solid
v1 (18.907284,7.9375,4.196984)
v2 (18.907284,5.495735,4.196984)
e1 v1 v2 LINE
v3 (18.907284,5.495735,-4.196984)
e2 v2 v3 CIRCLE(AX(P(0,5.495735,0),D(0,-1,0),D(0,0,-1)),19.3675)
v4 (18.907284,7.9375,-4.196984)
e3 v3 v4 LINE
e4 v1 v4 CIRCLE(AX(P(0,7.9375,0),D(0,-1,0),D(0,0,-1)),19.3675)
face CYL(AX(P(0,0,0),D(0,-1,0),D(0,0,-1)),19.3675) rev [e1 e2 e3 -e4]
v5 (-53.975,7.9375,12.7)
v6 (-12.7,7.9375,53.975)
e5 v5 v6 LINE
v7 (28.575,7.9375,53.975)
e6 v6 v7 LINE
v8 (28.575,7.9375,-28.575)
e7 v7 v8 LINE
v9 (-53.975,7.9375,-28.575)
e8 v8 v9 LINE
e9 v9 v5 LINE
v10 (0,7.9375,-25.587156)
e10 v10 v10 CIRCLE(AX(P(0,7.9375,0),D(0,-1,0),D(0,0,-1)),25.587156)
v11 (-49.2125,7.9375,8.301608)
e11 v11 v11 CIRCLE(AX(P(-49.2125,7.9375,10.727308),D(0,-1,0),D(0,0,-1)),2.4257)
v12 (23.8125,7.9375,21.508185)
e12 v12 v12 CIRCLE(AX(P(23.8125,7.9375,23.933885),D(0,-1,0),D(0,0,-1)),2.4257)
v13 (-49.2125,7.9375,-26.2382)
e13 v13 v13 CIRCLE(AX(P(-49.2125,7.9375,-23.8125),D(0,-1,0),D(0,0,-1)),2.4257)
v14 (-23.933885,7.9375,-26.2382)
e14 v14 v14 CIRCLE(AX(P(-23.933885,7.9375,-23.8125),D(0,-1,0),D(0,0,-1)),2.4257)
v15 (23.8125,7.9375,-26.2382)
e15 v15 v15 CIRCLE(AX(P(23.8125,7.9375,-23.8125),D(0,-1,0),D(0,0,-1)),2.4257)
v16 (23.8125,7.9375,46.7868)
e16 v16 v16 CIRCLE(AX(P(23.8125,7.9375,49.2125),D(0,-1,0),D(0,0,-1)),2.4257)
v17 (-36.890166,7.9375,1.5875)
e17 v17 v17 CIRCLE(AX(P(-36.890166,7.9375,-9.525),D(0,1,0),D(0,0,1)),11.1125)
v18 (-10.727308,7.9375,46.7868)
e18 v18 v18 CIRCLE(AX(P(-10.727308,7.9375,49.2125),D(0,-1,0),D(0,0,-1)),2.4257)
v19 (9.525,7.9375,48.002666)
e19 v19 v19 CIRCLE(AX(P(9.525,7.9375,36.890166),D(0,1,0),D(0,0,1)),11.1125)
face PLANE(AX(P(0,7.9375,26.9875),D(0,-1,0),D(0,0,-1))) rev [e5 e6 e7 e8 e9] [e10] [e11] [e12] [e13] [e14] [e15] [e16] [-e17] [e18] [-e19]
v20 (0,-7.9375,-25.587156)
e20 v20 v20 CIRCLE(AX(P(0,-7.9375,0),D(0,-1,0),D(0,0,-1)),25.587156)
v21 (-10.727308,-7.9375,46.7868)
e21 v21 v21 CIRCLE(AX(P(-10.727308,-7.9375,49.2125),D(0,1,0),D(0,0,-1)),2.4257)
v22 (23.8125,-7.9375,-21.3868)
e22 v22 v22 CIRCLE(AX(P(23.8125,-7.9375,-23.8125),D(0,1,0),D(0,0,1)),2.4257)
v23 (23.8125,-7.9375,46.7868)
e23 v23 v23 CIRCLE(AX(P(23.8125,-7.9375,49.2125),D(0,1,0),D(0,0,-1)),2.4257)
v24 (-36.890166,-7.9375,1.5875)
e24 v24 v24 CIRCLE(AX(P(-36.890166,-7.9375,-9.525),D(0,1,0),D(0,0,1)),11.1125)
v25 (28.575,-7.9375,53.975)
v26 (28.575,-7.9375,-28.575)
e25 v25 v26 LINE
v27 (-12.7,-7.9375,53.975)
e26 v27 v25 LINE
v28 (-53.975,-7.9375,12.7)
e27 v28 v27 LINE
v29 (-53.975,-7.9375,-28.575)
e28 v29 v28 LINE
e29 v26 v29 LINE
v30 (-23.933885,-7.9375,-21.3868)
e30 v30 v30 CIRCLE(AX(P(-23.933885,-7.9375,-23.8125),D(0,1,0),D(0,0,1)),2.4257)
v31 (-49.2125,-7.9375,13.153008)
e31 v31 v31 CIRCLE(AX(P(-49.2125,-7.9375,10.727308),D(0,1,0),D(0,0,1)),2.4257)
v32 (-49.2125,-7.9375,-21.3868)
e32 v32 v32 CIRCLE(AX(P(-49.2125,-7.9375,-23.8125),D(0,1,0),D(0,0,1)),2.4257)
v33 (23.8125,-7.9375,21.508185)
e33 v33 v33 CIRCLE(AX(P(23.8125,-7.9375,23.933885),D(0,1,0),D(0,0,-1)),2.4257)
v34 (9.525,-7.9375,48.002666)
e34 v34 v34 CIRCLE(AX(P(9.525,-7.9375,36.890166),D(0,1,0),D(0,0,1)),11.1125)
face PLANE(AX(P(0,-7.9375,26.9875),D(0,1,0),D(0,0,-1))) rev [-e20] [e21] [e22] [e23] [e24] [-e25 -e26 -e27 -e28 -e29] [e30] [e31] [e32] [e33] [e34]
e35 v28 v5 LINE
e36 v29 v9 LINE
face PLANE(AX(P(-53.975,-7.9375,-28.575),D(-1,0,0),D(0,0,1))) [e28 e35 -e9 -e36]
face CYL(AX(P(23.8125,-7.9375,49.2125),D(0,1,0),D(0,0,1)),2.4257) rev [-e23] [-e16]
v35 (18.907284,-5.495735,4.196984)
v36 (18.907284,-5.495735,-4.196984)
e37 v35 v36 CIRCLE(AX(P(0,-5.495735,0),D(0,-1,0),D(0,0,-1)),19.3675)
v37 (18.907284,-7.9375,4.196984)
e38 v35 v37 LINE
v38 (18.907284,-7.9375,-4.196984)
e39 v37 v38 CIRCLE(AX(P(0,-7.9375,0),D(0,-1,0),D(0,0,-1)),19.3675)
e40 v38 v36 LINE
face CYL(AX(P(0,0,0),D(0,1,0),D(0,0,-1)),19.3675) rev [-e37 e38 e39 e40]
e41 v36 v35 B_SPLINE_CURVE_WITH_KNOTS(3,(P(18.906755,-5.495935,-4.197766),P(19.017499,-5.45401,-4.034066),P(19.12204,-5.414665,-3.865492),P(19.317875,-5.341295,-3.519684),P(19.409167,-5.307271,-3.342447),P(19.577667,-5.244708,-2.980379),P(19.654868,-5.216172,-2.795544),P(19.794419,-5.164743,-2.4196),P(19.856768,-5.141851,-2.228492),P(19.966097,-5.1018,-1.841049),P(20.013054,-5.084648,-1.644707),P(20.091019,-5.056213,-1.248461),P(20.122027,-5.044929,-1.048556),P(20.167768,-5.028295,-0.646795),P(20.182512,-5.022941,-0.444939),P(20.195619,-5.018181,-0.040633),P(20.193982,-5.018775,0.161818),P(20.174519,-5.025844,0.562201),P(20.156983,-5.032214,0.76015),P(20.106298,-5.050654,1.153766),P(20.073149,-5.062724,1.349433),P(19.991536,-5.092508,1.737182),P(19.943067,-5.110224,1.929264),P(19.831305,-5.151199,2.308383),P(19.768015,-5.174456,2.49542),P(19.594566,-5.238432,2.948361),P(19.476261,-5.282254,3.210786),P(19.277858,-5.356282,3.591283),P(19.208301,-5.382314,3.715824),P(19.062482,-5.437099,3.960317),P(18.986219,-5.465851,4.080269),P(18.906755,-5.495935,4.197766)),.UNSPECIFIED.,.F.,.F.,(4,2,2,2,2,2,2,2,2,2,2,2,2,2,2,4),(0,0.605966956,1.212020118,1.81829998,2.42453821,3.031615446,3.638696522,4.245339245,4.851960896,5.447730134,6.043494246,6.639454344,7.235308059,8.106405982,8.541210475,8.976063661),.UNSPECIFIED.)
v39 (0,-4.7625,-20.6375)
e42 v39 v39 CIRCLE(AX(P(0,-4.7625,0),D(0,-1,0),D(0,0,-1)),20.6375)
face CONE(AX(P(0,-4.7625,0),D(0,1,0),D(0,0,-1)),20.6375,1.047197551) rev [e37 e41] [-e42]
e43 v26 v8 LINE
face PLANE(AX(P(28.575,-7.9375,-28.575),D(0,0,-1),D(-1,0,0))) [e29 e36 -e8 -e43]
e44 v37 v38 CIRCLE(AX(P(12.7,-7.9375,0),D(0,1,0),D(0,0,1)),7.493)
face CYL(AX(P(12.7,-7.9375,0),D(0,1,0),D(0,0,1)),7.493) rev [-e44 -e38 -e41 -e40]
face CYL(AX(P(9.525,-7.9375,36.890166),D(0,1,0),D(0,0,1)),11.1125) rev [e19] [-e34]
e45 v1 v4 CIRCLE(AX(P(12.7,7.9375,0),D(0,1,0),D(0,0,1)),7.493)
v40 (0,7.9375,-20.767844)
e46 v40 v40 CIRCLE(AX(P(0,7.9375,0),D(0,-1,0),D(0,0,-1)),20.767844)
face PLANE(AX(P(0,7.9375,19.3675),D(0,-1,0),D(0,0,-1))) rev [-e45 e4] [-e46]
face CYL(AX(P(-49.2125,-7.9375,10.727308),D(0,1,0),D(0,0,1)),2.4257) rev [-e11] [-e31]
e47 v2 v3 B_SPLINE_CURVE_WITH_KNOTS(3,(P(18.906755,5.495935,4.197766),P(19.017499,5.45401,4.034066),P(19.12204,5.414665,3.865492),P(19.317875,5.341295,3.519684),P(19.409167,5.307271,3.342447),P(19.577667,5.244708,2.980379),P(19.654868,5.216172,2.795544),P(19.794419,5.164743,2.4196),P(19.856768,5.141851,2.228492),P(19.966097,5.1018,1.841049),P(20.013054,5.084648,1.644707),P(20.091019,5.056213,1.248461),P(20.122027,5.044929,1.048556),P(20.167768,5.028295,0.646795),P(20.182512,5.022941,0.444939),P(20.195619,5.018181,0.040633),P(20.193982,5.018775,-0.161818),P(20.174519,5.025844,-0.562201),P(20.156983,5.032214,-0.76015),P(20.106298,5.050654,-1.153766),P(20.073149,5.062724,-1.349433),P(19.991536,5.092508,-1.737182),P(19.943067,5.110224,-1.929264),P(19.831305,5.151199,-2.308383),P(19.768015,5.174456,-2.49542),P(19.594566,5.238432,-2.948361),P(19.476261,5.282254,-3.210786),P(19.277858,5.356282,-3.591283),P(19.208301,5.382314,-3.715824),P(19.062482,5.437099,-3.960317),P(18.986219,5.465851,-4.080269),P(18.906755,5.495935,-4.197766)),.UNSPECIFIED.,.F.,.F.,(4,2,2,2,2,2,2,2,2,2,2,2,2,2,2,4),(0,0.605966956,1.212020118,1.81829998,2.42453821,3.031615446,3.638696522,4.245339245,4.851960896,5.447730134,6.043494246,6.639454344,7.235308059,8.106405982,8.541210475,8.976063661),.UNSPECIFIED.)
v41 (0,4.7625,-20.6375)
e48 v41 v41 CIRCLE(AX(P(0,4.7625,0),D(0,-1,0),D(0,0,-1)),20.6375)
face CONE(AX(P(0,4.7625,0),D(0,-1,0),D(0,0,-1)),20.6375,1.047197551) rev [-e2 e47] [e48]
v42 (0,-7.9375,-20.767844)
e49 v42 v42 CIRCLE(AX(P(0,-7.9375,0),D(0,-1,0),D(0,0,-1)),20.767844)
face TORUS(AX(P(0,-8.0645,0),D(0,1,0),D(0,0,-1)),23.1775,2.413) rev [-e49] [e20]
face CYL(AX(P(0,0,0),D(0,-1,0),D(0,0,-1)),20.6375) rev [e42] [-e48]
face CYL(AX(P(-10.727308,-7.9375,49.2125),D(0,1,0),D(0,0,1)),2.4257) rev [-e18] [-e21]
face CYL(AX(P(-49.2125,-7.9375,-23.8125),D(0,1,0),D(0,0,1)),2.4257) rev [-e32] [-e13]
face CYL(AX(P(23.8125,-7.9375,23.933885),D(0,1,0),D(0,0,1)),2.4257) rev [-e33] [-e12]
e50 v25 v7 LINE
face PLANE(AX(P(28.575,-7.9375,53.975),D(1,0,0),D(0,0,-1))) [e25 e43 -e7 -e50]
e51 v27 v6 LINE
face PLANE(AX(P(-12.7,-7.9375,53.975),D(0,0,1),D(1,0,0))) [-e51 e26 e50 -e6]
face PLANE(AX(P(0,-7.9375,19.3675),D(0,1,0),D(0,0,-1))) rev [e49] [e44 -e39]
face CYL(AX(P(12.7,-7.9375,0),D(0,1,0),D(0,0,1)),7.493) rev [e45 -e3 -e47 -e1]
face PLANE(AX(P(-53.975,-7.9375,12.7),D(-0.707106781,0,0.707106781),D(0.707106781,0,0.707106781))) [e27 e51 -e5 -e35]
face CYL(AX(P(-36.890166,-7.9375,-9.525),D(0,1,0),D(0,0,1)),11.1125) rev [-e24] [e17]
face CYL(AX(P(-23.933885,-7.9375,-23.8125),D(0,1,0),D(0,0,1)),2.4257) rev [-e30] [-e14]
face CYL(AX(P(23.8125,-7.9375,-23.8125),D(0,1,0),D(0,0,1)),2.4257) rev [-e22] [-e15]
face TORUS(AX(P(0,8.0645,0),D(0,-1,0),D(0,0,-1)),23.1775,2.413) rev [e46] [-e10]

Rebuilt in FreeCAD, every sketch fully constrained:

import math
import FreeCAD as App
import Part
import Sketcher
Q = App.Units.Quantity


def add_polygon(sketch, points):
    """Adds a closed chain of lines whose ends are joined by coincident constraints."""
    first, n = sketch.GeometryCount, len(points)
    for a, b in zip(points, points[1:] + points[:1]):
        sketch.addGeometry(Part.LineSegment(App.Vector(*a, 0), App.Vector(*b, 0)), False)
    for i in range(n):
        sketch.addConstraint(Sketcher.Constraint("Coincident", first + i, 2, first + (i + 1) % n, 1))

doc = App.newDocument("Part")
params = doc.addObject("Spreadsheet::Sheet", "Params")
for row, (alias, value) in enumerate([
    ("sketch1_radius", "0.095 in"),
    ("sketch1_height", "0.25 in"),
    ("sketch1_width", "0.1875 in"),
    ("sketch1_width2", "0.3125 in"),
    ("revolution_angle", "360 deg"),
    ("sketch2_diameter", "0.59 in"),
    ("sketch3_diameter", "2.12 in"),
    ("sketch3_diameter2", "0.875 in"),
    ("sketch3_width", "3.25 in"),
    ("sketch3_width2", "1.625 in"),
    ("sketch4_diameter", "0.5 in"),
    ("sketch4_width", "3.25 in"),
    ("sketch4_width2", "1.625 in"),
    ("pad2_length", "0.1875 in"),
    ("sketch5_diameter", "0.191 in"),
    ("pad3_length", "27.9875 mm"),
    ("pad3_length2", "16.875 mm"),
], start=1):
    params.set(f"A{row}", alias)
    params.set(f"B{row}", "=" + value)
    params.setAlias(f"B{row}", alias)

body = doc.addObject("PartDesign::Body", "Body")

sketch1 = body.newObject("Sketcher::SketchObject", "Sketch")
sketch1.AttachmentSupport = (doc.getObject("YZ_Plane"), [""])
sketch1.MapMode = "FlatFace"
sketch1.addGeometry([
    Part.LineSegment(App.Vector(0, 27, 0), App.Vector(0, 20.6, 0)),
    Part.LineSegment(App.Vector(0, 20.6, 0), App.Vector(4.8, 20.6, 0)),
    Part.LineSegment(App.Vector(4.8, 20.6, 0), App.Vector(5.5, 19.4, 0)),
    Part.LineSegment(App.Vector(5.5, 19.4, 0), App.Vector(7.9, 19.4, 0)),
    Part.LineSegment(App.Vector(7.9, 19.4, 0), App.Vector(7.9, 20.8, 0)),
    Part.ArcOfCircle(Part.Circle(App.Vector(8.1, 23.2, 0), App.Vector(0, 0, 1), 2.4), math.radians(93), math.radians(267)),
    Part.LineSegment(App.Vector(7.9, 25.6, 0), App.Vector(7.9, 27, 0)),
    Part.LineSegment(App.Vector(7.9, 27, 0), App.Vector(0, 27, 0)),
], False)
sketch1.addConstraint([
    Sketcher.Constraint("Coincident", 0, 2, 1, 1),
    Sketcher.Constraint("Coincident", 1, 2, 2, 1),
    Sketcher.Constraint("Coincident", 2, 2, 3, 1),
    Sketcher.Constraint("Coincident", 3, 2, 4, 1),
    Sketcher.Constraint("Coincident", 4, 2, 5, 2),
    Sketcher.Constraint("Coincident", 5, 1, 6, 1),
    Sketcher.Constraint("Coincident", 6, 2, 7, 1),
    Sketcher.Constraint("Coincident", 7, 2, 0, 1),
    Sketcher.Constraint("Vertical", 0),
    Sketcher.Constraint("Horizontal", 1),
    Sketcher.Constraint("Horizontal", 3),
    Sketcher.Constraint("Vertical", 4),
    Sketcher.Constraint("Vertical", 6),
    Sketcher.Constraint("Horizontal", 7),
    Sketcher.Constraint("PointOnObject", 0, 2, -2),
    Sketcher.Constraint("Vertical", 4, 2, 5, 1),
    Sketcher.Constraint("Equal", 4, 6),
    Sketcher.Constraint("Angle", 2, Q("-60 deg")),
    Sketcher.Constraint("Radius", 5, Q("0.095 in")),
    Sketcher.Constraint("DistanceY", 0, 2, 0, 1, Q("0.25 in")),
    Sketcher.Constraint("DistanceY", 0, 2, 5, 3, Q("0.1 in")),
    Sketcher.Constraint("DistanceX", 1, 1, 1, 2, Q("0.1875 in")),
    Sketcher.Constraint("DistanceX", 7, 2, 7, 1, Q("0.3125 in")),
    Sketcher.Constraint("DistanceX", 1, 2, 5, 3, Q("0.13 in")),
    Sketcher.Constraint("DistanceY", -1, 1, 0, 2, Q("0.8125 in")),
])
sketch1.setExpression("Constraints[18]", "Params.sketch1_radius")
sketch1.setExpression("Constraints[19]", "Params.sketch1_height")
sketch1.setExpression("Constraints[21]", "Params.sketch1_width")
sketch1.setExpression("Constraints[22]", "Params.sketch1_width2")
revolution = body.newObject("PartDesign::Revolution", "Revolution")
revolution.Profile = sketch1
revolution.ReferenceAxis = (sketch1, ["H_Axis"])
revolution.setExpression("Angle", "Params.revolution_angle")
body2 = doc.addObject("PartDesign::Body", "Body001")
doc.recompute()

body2.BaseFeature = body
doc.recompute()

mirroring = doc.addObject("Part::Mirroring", "Mirroring")
mirroring.Source = body
mirroring.Base = App.Vector(0, 0, 20.6375)
mirroring.Normal = App.Vector(0, 1, 0)
body3 = doc.addObject("PartDesign::Body", "Body002")
body3.BaseFeature = mirroring
boolean = body2.newObject("PartDesign::Boolean", "Boolean")
boolean.Type = "Fuse"
boolean.addObjects([body3])
doc.recompute()

sketch2 = body2.newObject("Sketcher::SketchObject", "Sketch001")
sketch2.AttachmentSupport = (doc.getObject("XZ_Plane001"), [""])
sketch2.MapMode = "FlatFace"
sketch2.addGeometry(Part.Circle(App.Vector(13, 0, 0), App.Vector(0, 0, 1), 7), False)
sketch2.addConstraint([
    Sketcher.Constraint("PointOnObject", 0, 3, -1),
    Sketcher.Constraint("Diameter", 0, Q("0.59 in")),
    Sketcher.Constraint("DistanceX", -1, 1, 0, 3, Q("0.5 in")),
])
sketch2.setExpression("Constraints[1]", "Params.sketch2_diameter")
pocket1 = body2.newObject("PartDesign::Pocket", "Pocket")
pocket1.Profile = sketch2
pocket1.Type = "ThroughAll"
pocket1.Midplane = True

sketch3 = body2.newObject("Sketcher::SketchObject", "Sketch002")
sketch3.AttachmentSupport = (doc.getObject("XZ_Plane001"), [""])
sketch3.MapMode = "FlatFace"
sketch3.AttachmentOffset = App.Placement(App.Vector(0, 0, -0.3125 * 25.4), App.Rotation())
add_polygon(sketch3, [(29, -29), (-54, -29), (-54, 13), (-13, 54), (29, 54)])
sketch3.addGeometry(Part.Circle(App.Vector(10, 37, 0), App.Vector(0, 0, 1), 11), False)
sketch3.addGeometry(Part.Circle(App.Vector(-37, -10, 0), App.Vector(0, 0, 1), 11), False)
sketch3.addGeometry(Part.Circle(App.Vector(0, 0, 0), App.Vector(0, 0, 1), 27), False)
sketch3.addConstraint([
    Sketcher.Constraint("Horizontal", 0),
    Sketcher.Constraint("Vertical", 1),
    Sketcher.Constraint("Horizontal", 3),
    Sketcher.Constraint("Vertical", 4),
    Sketcher.Constraint("Coincident", 7, 3, -1, 1),
    Sketcher.Constraint("Equal", 5, 6),
    Sketcher.Constraint("Equal", 3, 1),
    Sketcher.Constraint("Equal", 0, 4),
    Sketcher.Constraint("Diameter", 7, Q("2.12 in")),
    Sketcher.Constraint("Diameter", 5, Q("0.875 in")),
    Sketcher.Constraint("DistanceX", 0, 2, 0, 1, Q("3.25 in")),
    Sketcher.Constraint("DistanceY", -1, 1, 1, 2, Q("0.5 in")),
    Sketcher.Constraint("DistanceX", 2, 2, -1, 1, Q("0.5 in")),
    Sketcher.Constraint("DistanceX", 0, 2, 5, 3, Q("2.5 in")),
    Sketcher.Constraint("DistanceY", 6, 3, 2, 2, Q("2.5 in")),
    Sketcher.Constraint("DistanceX", 3, 1, 3, 2, Q("1.625 in")),
    Sketcher.Constraint("DistanceY", -1, 1, 5, 3, Q("36.890166 mm")),
    Sketcher.Constraint("DistanceX", 6, 3, -1, 1, Q("36.890166 mm")),
])
sketch3.setExpression("Constraints[13]", "Params.sketch3_diameter")
sketch3.setExpression("Constraints[14]", "Params.sketch3_diameter2")
sketch3.setExpression("Constraints[15]", "Params.sketch3_width")
sketch3.setExpression("Constraints[20]", "Params.sketch3_width2")
pad1 = body2.newObject("PartDesign::Pad", "Pad")
pad1.Profile = sketch3
pad1.Type = "UpToLast"
body4 = doc.addObject("PartDesign::Body", "Body003")

sketch4 = body4.newObject("Sketcher::SketchObject", "Sketch003")
sketch4.AttachmentSupport = (doc.getObject("XZ_Plane003"), [""])
sketch4.MapMode = "FlatFace"
sketch4.AttachmentOffset = App.Placement(App.Vector(0, 0, -1.1875 * 25.4), App.Rotation())
add_polygon(sketch4, [(29, 54), (29, -29), (-54, -29), (-54, 13), (-13, 54)])
sketch4.addGeometry(Part.Circle(App.Vector(0, 0, 0), App.Vector(0, 0, 1), 6), False)
sketch4.addConstraint([
    Sketcher.Constraint("Vertical", 0),
    Sketcher.Constraint("Horizontal", 1),
    Sketcher.Constraint("Vertical", 2),
    Sketcher.Constraint("Horizontal", 4),
    Sketcher.Constraint("Coincident", 5, 3, -1, 1),
    Sketcher.Constraint("Equal", 1, 0),
    Sketcher.Constraint("Equal", 4, 2),
    Sketcher.Constraint("Diameter", 5, Q("0.5 in")),
    Sketcher.Constraint("DistanceX", 1, 2, 1, 1, Q("3.25 in")),
    Sketcher.Constraint("DistanceY", -1, 1, 2, 2, Q("0.5 in")),
    Sketcher.Constraint("DistanceX", 3, 2, -1, 1, Q("0.5 in")),
    Sketcher.Constraint("DistanceX", 4, 1, 4, 2, Q("1.625 in")),
])
sketch4.setExpression("Constraints[12]", "Params.sketch4_diameter")
sketch4.setExpression("Constraints[13]", "Params.sketch4_width")
sketch4.setExpression("Constraints[16]", "Params.sketch4_width2")
pad2 = body4.newObject("PartDesign::Pad", "Pad001")
pad2.Profile = sketch4
pad2.setExpression("Length", "Params.pad2_length")
pad2.Reversed = True
body5 = doc.addObject("PartDesign::Body", "Body004")
body5.AllowCompound = True

sketch5 = body5.newObject("Sketcher::SketchObject", "Sketch004")
sketch5.AttachmentSupport = (doc.getObject("XZ_Plane004"), [""])
sketch5.MapMode = "FlatFace"
sketch5.AttachmentOffset = App.Placement(App.Vector(0, 0, -0.3125 * 25.4), App.Rotation())
sketch5.addGeometry([
    Part.Circle(App.Vector(23.8, -23.8, 0), App.Vector(0, 0, 1), 2.4),
    Part.Circle(App.Vector(-49.2, -23.8, 0), App.Vector(0, 0, 1), 2.4),
    Part.Circle(App.Vector(-23.9, -23.8, 0), App.Vector(0, 0, 1), 2.4),
    Part.Circle(App.Vector(-49.2, 10.7, 0), App.Vector(0, 0, 1), 2.4),
    Part.Circle(App.Vector(23.8, 23.9, 0), App.Vector(0, 0, 1), 2.4),
    Part.Circle(App.Vector(23.8, 49.2, 0), App.Vector(0, 0, 1), 2.4),
    Part.Circle(App.Vector(-10.7, 49.2, 0), App.Vector(0, 0, 1), 2.4),
], False)
sketch5.addConstraint([
    Sketcher.Constraint("Equal", 0, 1),
    Sketcher.Constraint("Equal", 1, 2),
    Sketcher.Constraint("Equal", 2, 3),
    Sketcher.Constraint("Equal", 3, 4),
    Sketcher.Constraint("Equal", 4, 5),
    Sketcher.Constraint("Equal", 5, 6),
    Sketcher.Constraint("Horizontal", 0, 3, 1, 3),
    Sketcher.Constraint("Horizontal", 1, 3, 2, 3),
    Sketcher.Constraint("Horizontal", 5, 3, 6, 3),
    Sketcher.Constraint("Vertical", 1, 3, 3, 3),
    Sketcher.Constraint("Vertical", 0, 3, 4, 3),
    Sketcher.Constraint("Vertical", 4, 3, 5, 3),
    Sketcher.Constraint("Diameter", 0, Q("0.191 in")),
    Sketcher.Constraint("DistanceX", -1, 1, 0, 3, Q("0.9375 in")),
    Sketcher.Constraint("DistanceY", 0, 3, -1, 1, Q("0.9375 in")),
    Sketcher.Constraint("DistanceX", 1, 3, -1, 1, Q("1.9375 in")),
    Sketcher.Constraint("DistanceY", -1, 1, 5, 3, Q("1.9375 in")),
    Sketcher.Constraint("DistanceX", 2, 3, -1, 1, Q("23.933885 mm")),
    Sketcher.Constraint("DistanceY", -1, 1, 3, 3, Q("10.727308 mm")),
    Sketcher.Constraint("DistanceY", -1, 1, 4, 3, Q("23.933885 mm")),
    Sketcher.Constraint("DistanceX", 6, 3, -1, 1, Q("10.727308 mm")),
])
sketch5.setExpression("Constraints[12]", "Params.sketch5_diameter")
pad3 = body5.newObject("PartDesign::Pad", "Pad002")
pad3.Profile = sketch5
pad3.Type = "TwoLengths"
pad3.setExpression("Length", "Params.pad3_length")
pad3.setExpression("Length2", "Params.pad3_length2")
pad3.Reversed = True
doc.recompute()

body6 = doc.addObject("PartDesign::Body", "Body005")
body6.BaseFeature = body5
boolean2 = body2.newObject("PartDesign::Boolean", "Boolean001")
boolean2.Type = "Cut"
boolean2.addObjects([body6])
doc.recompute()

boolean3 = body4.newObject("PartDesign::Boolean", "Boolean002")
boolean3.Type = "Cut"
boolean3.addObjects([body5])
body4.Visibility = False
mirroring.Visibility = False

doc.recompute()
